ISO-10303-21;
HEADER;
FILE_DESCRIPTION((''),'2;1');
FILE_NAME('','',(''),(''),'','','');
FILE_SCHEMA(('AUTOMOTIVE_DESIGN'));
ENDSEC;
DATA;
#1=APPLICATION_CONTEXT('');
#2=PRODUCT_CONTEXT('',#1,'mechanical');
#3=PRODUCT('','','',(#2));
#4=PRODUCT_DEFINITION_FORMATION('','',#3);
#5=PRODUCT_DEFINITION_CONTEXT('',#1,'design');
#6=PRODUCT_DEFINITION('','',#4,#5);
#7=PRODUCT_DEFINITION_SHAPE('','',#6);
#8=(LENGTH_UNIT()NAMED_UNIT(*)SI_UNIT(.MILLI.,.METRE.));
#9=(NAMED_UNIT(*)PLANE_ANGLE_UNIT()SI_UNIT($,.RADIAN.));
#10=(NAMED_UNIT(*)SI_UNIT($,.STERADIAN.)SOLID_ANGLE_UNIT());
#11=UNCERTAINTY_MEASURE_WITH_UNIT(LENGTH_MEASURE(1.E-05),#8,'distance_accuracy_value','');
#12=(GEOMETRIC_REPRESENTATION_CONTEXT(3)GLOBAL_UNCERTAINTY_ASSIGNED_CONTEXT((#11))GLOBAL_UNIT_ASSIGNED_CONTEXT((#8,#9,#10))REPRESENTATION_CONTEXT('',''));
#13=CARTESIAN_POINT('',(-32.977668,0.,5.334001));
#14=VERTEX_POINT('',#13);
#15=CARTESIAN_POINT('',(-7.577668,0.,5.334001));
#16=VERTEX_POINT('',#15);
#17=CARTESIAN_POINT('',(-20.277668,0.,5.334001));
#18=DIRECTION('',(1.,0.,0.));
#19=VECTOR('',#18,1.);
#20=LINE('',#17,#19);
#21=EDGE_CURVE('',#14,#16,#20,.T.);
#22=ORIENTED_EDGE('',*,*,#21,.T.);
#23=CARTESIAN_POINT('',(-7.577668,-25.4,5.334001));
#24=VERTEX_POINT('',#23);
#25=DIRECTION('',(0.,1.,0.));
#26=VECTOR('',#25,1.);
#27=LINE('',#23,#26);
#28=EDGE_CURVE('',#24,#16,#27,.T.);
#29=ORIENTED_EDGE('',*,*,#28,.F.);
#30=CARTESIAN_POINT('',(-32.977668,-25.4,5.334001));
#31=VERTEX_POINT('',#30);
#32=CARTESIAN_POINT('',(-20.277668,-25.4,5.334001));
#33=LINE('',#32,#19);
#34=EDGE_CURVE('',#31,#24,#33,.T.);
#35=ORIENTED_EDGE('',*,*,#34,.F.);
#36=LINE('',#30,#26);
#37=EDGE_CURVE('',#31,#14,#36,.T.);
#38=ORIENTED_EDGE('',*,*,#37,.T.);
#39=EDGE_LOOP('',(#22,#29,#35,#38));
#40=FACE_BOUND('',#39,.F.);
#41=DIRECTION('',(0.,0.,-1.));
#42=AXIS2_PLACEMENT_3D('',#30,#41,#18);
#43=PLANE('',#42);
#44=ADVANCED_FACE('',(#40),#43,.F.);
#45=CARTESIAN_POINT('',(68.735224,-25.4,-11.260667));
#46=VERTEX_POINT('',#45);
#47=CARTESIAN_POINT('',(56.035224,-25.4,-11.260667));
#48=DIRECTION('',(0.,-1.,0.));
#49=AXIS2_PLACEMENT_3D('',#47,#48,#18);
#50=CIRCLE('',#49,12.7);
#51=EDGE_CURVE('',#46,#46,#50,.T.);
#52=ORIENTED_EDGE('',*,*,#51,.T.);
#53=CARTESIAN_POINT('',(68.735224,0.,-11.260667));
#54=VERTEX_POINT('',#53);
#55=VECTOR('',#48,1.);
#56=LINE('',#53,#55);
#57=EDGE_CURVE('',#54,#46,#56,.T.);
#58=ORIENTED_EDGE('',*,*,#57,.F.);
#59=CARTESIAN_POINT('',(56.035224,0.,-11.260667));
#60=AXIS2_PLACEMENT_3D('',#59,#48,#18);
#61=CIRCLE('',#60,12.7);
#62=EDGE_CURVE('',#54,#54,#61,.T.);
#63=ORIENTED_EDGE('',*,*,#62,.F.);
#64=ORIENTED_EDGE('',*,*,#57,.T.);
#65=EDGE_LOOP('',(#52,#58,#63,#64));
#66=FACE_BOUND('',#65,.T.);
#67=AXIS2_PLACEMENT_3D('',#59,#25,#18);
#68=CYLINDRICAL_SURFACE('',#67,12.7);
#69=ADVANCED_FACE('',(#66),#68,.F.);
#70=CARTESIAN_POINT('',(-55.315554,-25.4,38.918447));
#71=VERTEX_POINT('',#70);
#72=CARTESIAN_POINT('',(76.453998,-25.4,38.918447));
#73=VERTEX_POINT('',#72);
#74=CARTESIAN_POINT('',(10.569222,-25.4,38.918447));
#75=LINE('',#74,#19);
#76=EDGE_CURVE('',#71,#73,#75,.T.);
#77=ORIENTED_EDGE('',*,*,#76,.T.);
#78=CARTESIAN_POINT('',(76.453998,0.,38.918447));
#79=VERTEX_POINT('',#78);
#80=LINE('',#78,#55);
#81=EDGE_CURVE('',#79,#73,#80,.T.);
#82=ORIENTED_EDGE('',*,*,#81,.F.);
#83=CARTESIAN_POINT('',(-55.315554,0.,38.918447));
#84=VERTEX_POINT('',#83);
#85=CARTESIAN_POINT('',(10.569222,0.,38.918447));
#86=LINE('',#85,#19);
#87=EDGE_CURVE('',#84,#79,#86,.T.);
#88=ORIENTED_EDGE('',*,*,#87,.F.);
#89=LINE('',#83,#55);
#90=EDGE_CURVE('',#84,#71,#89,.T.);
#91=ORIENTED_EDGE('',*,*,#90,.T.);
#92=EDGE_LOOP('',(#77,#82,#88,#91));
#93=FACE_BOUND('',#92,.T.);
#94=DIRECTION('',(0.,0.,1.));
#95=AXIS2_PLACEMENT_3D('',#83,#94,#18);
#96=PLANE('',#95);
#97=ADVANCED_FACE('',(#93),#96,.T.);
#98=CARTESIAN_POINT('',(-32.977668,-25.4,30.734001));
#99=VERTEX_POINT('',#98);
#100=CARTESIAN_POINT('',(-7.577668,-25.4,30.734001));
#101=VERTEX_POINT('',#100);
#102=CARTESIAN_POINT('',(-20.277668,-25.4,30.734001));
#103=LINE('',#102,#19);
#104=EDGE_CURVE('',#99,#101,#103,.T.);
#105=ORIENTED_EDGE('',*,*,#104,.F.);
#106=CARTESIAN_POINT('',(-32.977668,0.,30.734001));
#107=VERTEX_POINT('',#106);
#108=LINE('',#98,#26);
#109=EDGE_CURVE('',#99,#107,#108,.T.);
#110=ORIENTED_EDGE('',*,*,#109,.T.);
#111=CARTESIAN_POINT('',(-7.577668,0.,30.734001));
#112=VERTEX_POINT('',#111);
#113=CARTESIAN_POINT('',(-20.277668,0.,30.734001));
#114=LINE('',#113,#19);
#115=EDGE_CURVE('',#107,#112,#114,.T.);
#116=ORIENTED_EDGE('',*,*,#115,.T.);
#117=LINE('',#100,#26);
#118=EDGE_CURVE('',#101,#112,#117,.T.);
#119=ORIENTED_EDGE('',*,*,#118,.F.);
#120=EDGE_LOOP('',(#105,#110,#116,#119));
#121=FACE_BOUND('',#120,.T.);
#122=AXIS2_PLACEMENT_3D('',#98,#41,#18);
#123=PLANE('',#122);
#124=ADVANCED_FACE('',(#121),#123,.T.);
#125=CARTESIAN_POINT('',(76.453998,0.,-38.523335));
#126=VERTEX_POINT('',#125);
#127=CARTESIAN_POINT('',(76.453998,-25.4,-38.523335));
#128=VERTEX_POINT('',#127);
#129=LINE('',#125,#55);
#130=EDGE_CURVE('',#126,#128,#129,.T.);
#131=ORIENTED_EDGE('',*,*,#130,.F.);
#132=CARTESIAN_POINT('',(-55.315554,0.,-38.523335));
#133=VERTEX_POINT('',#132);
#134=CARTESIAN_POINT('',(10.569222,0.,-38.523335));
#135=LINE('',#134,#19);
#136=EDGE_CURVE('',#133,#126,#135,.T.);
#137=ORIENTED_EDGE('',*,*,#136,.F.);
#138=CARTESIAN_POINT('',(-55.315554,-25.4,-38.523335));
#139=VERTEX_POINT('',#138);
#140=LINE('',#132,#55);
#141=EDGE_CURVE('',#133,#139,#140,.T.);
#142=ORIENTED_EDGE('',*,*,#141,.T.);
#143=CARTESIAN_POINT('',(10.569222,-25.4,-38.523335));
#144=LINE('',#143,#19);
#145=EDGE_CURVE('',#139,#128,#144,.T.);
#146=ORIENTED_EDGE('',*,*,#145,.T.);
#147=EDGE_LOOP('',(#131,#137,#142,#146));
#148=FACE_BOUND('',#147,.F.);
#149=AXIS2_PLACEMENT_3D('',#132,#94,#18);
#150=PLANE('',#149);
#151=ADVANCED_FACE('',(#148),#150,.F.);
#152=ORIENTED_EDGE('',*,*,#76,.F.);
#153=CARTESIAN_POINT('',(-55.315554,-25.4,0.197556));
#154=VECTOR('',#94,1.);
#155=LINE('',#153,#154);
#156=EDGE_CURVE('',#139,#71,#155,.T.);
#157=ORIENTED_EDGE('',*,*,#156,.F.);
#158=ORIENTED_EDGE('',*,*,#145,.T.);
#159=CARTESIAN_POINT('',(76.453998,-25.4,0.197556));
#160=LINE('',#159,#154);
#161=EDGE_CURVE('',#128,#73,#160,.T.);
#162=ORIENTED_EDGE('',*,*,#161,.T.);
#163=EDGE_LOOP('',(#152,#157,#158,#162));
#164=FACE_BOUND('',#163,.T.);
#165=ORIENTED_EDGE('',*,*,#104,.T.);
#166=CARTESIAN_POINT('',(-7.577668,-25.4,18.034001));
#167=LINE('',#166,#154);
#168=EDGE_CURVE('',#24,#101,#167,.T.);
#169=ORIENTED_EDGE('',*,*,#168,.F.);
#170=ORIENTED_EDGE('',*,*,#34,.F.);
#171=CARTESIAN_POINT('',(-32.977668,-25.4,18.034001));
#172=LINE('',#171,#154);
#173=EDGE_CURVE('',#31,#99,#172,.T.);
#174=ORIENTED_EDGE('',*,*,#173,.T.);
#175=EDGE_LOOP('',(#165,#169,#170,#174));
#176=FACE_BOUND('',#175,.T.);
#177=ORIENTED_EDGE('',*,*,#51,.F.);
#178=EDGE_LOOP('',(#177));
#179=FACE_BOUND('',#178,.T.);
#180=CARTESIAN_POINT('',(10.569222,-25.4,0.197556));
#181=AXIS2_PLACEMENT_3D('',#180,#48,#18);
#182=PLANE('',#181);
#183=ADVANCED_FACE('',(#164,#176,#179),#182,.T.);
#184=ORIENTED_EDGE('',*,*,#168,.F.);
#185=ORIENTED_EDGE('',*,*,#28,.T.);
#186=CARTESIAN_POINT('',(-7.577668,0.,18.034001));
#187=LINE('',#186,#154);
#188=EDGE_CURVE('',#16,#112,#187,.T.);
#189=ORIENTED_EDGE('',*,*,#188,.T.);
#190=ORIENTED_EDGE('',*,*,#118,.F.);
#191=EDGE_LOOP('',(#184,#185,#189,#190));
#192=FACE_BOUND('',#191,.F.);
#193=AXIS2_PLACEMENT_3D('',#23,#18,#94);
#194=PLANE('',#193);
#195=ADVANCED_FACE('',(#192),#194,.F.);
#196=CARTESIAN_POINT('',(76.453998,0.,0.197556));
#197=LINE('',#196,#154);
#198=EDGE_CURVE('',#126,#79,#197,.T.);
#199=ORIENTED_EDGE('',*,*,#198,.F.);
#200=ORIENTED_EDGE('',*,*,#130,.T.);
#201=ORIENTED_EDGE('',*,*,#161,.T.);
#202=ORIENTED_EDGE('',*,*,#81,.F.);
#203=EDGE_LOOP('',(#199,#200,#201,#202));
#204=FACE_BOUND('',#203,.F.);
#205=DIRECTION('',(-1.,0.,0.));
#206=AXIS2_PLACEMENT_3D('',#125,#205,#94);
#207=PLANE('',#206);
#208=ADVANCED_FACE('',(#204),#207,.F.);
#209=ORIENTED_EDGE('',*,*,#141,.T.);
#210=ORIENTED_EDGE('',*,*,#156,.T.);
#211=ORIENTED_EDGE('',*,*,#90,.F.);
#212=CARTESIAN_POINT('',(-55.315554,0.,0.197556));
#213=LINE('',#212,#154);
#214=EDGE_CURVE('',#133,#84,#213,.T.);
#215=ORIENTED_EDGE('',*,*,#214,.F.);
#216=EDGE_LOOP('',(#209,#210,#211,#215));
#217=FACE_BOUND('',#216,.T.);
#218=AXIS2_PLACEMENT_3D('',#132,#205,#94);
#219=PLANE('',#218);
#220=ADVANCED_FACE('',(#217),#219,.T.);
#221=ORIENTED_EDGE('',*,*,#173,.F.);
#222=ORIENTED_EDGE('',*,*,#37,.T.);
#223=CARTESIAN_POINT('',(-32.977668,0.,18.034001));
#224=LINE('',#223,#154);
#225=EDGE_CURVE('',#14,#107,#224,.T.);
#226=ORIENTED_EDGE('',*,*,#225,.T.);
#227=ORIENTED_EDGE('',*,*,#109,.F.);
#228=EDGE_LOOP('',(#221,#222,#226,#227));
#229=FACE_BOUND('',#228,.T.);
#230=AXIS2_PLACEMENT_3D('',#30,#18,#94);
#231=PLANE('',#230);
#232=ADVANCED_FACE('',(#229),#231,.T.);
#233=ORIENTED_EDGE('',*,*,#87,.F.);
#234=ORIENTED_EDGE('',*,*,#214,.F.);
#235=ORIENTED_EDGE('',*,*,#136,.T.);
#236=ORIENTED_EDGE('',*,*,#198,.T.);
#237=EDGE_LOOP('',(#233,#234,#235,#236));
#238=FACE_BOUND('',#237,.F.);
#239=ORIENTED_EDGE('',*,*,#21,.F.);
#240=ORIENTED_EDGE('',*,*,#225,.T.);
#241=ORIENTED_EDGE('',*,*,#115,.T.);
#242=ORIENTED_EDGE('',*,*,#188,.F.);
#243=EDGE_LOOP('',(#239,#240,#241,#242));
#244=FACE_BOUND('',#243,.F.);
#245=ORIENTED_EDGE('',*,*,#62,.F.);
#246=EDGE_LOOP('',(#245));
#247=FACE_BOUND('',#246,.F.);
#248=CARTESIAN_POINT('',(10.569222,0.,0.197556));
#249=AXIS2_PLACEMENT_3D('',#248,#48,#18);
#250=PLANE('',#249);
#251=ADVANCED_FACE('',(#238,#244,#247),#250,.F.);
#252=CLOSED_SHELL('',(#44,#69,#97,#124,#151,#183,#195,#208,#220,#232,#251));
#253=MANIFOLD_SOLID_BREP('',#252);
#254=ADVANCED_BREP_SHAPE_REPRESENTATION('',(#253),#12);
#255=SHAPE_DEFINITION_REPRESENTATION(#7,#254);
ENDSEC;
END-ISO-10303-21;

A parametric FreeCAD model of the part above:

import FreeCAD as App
import Part
import Sketcher
Q = App.Units.Quantity


def add_polygon(sketch, points):
    """Adds a closed chain of lines whose ends are joined by coincident constraints."""
    first, n = sketch.GeometryCount, len(points)
    for a, b in zip(points, points[1:] + points[:1]):
        sketch.addGeometry(Part.LineSegment(App.Vector(*a, 0), App.Vector(*b, 0)), False)
    for i in range(n):
        sketch.addConstraint(Sketcher.Constraint("Coincident", first + i, 2, first + (i + 1) % n, 1))

doc = App.newDocument("Part")
body = doc.addObject("PartDesign::Body", "Body")

# Sketch on XZ plane
sketch1 = body.newObject("Sketcher::SketchObject", "Sketch")
sketch1.AttachmentSupport = (doc.getObject("XZ_Plane"), [""])
sketch1.MapMode = "FlatFace"
add_polygon(sketch1, [(-55.315554, 38.918447), (-55.315554, -38.523335), (76.453998, -38.523335), (76.453998, 38.918447)])  # lines 0-3
sketch1.addConstraint(Sketcher.Constraint("Vertical", 0))
sketch1.addConstraint(Sketcher.Constraint("Horizontal", 1))
sketch1.addConstraint(Sketcher.Constraint("Vertical", 2))
sketch1.addConstraint(Sketcher.Constraint("Horizontal", 3))
sketch1.addConstraint(Sketcher.Constraint("DistanceX", -1, 1, 1, 2, Q("3.0099999 in")))
sketch1.addConstraint(Sketcher.Constraint("DistanceX", 1, 1, 1, 2, 131.769553))
sketch1.addConstraint(Sketcher.Constraint("DistanceY", 0, 2, 0, 1, 77.441782))
sketch1.addConstraint(Sketcher.Constraint("DistanceY", 0, 2, -1, 1, 38.523335))
pad1 = body.newObject("PartDesign::Pad", "Pad")
pad1.Profile = sketch1
pad1.Length = Q("1 in")

# Sketch on XZ plane
sketch2 = body.newObject("Sketcher::SketchObject", "Sketch001")
sketch2.AttachmentSupport = (doc.getObject("XZ_Plane"), [""])
sketch2.MapMode = "FlatFace"
sketch2.addGeometry(Part.Circle(App.Vector(56.035224, -11.260667, 0), App.Vector(0, 0, 1), 12.7), False)
sketch2.addConstraint(Sketcher.Constraint("Diameter", 0, Q("1 in")))
sketch2.addConstraint(Sketcher.Constraint("DistanceX", -1, 1, 0, 3, 56.035224))
sketch2.addConstraint(Sketcher.Constraint("DistanceY", 0, 3, -1, 1, 11.260667))
pocket1 = body.newObject("PartDesign::Pocket", "Pocket")
pocket1.Profile = sketch2
pocket1.Length = Q("1 in")
pocket1.Reversed = True

# Sketch on XZ plane
sketch3 = body.newObject("Sketcher::SketchObject", "Sketch002")
sketch3.AttachmentSupport = (doc.getObject("XZ_Plane"), [""])
sketch3.MapMode = "FlatFace"
sketch3.AttachmentOffset = App.Placement(App.Vector(0, 0, 1 * 25.4), App.Rotation())
add_polygon(sketch3, [(-32.977668, 30.734001), (-32.977668, 5.334001), (-7.577668, 5.334001), (-7.577668, 30.734001)])  # lines 0-3
sketch3.addConstraint(Sketcher.Constraint("Vertical", 0))
sketch3.addConstraint(Sketcher.Constraint("Horizontal", 1))
sketch3.addConstraint(Sketcher.Constraint("Vertical", 2))
sketch3.addConstraint(Sketcher.Constraint("Horizontal", 3))
sketch3.addConstraint(Sketcher.Constraint("Equal", 3, 0))
sketch3.addConstraint(Sketcher.Constraint("DistanceX", 1, 1, 1, 2, Q("1 in")))
sketch3.addConstraint(Sketcher.Constraint("DistanceY", -1, 1, 0, 2, Q("0.21 in")))
sketch3.addConstraint(Sketcher.Constraint("DistanceX", 0, 2, -1, 1, 32.977668))
pocket2 = body.newObject("PartDesign::Pocket", "Pocket001")
pocket2.Profile = sketch3
pocket2.Length = Q("1 in")

doc.recompute()
